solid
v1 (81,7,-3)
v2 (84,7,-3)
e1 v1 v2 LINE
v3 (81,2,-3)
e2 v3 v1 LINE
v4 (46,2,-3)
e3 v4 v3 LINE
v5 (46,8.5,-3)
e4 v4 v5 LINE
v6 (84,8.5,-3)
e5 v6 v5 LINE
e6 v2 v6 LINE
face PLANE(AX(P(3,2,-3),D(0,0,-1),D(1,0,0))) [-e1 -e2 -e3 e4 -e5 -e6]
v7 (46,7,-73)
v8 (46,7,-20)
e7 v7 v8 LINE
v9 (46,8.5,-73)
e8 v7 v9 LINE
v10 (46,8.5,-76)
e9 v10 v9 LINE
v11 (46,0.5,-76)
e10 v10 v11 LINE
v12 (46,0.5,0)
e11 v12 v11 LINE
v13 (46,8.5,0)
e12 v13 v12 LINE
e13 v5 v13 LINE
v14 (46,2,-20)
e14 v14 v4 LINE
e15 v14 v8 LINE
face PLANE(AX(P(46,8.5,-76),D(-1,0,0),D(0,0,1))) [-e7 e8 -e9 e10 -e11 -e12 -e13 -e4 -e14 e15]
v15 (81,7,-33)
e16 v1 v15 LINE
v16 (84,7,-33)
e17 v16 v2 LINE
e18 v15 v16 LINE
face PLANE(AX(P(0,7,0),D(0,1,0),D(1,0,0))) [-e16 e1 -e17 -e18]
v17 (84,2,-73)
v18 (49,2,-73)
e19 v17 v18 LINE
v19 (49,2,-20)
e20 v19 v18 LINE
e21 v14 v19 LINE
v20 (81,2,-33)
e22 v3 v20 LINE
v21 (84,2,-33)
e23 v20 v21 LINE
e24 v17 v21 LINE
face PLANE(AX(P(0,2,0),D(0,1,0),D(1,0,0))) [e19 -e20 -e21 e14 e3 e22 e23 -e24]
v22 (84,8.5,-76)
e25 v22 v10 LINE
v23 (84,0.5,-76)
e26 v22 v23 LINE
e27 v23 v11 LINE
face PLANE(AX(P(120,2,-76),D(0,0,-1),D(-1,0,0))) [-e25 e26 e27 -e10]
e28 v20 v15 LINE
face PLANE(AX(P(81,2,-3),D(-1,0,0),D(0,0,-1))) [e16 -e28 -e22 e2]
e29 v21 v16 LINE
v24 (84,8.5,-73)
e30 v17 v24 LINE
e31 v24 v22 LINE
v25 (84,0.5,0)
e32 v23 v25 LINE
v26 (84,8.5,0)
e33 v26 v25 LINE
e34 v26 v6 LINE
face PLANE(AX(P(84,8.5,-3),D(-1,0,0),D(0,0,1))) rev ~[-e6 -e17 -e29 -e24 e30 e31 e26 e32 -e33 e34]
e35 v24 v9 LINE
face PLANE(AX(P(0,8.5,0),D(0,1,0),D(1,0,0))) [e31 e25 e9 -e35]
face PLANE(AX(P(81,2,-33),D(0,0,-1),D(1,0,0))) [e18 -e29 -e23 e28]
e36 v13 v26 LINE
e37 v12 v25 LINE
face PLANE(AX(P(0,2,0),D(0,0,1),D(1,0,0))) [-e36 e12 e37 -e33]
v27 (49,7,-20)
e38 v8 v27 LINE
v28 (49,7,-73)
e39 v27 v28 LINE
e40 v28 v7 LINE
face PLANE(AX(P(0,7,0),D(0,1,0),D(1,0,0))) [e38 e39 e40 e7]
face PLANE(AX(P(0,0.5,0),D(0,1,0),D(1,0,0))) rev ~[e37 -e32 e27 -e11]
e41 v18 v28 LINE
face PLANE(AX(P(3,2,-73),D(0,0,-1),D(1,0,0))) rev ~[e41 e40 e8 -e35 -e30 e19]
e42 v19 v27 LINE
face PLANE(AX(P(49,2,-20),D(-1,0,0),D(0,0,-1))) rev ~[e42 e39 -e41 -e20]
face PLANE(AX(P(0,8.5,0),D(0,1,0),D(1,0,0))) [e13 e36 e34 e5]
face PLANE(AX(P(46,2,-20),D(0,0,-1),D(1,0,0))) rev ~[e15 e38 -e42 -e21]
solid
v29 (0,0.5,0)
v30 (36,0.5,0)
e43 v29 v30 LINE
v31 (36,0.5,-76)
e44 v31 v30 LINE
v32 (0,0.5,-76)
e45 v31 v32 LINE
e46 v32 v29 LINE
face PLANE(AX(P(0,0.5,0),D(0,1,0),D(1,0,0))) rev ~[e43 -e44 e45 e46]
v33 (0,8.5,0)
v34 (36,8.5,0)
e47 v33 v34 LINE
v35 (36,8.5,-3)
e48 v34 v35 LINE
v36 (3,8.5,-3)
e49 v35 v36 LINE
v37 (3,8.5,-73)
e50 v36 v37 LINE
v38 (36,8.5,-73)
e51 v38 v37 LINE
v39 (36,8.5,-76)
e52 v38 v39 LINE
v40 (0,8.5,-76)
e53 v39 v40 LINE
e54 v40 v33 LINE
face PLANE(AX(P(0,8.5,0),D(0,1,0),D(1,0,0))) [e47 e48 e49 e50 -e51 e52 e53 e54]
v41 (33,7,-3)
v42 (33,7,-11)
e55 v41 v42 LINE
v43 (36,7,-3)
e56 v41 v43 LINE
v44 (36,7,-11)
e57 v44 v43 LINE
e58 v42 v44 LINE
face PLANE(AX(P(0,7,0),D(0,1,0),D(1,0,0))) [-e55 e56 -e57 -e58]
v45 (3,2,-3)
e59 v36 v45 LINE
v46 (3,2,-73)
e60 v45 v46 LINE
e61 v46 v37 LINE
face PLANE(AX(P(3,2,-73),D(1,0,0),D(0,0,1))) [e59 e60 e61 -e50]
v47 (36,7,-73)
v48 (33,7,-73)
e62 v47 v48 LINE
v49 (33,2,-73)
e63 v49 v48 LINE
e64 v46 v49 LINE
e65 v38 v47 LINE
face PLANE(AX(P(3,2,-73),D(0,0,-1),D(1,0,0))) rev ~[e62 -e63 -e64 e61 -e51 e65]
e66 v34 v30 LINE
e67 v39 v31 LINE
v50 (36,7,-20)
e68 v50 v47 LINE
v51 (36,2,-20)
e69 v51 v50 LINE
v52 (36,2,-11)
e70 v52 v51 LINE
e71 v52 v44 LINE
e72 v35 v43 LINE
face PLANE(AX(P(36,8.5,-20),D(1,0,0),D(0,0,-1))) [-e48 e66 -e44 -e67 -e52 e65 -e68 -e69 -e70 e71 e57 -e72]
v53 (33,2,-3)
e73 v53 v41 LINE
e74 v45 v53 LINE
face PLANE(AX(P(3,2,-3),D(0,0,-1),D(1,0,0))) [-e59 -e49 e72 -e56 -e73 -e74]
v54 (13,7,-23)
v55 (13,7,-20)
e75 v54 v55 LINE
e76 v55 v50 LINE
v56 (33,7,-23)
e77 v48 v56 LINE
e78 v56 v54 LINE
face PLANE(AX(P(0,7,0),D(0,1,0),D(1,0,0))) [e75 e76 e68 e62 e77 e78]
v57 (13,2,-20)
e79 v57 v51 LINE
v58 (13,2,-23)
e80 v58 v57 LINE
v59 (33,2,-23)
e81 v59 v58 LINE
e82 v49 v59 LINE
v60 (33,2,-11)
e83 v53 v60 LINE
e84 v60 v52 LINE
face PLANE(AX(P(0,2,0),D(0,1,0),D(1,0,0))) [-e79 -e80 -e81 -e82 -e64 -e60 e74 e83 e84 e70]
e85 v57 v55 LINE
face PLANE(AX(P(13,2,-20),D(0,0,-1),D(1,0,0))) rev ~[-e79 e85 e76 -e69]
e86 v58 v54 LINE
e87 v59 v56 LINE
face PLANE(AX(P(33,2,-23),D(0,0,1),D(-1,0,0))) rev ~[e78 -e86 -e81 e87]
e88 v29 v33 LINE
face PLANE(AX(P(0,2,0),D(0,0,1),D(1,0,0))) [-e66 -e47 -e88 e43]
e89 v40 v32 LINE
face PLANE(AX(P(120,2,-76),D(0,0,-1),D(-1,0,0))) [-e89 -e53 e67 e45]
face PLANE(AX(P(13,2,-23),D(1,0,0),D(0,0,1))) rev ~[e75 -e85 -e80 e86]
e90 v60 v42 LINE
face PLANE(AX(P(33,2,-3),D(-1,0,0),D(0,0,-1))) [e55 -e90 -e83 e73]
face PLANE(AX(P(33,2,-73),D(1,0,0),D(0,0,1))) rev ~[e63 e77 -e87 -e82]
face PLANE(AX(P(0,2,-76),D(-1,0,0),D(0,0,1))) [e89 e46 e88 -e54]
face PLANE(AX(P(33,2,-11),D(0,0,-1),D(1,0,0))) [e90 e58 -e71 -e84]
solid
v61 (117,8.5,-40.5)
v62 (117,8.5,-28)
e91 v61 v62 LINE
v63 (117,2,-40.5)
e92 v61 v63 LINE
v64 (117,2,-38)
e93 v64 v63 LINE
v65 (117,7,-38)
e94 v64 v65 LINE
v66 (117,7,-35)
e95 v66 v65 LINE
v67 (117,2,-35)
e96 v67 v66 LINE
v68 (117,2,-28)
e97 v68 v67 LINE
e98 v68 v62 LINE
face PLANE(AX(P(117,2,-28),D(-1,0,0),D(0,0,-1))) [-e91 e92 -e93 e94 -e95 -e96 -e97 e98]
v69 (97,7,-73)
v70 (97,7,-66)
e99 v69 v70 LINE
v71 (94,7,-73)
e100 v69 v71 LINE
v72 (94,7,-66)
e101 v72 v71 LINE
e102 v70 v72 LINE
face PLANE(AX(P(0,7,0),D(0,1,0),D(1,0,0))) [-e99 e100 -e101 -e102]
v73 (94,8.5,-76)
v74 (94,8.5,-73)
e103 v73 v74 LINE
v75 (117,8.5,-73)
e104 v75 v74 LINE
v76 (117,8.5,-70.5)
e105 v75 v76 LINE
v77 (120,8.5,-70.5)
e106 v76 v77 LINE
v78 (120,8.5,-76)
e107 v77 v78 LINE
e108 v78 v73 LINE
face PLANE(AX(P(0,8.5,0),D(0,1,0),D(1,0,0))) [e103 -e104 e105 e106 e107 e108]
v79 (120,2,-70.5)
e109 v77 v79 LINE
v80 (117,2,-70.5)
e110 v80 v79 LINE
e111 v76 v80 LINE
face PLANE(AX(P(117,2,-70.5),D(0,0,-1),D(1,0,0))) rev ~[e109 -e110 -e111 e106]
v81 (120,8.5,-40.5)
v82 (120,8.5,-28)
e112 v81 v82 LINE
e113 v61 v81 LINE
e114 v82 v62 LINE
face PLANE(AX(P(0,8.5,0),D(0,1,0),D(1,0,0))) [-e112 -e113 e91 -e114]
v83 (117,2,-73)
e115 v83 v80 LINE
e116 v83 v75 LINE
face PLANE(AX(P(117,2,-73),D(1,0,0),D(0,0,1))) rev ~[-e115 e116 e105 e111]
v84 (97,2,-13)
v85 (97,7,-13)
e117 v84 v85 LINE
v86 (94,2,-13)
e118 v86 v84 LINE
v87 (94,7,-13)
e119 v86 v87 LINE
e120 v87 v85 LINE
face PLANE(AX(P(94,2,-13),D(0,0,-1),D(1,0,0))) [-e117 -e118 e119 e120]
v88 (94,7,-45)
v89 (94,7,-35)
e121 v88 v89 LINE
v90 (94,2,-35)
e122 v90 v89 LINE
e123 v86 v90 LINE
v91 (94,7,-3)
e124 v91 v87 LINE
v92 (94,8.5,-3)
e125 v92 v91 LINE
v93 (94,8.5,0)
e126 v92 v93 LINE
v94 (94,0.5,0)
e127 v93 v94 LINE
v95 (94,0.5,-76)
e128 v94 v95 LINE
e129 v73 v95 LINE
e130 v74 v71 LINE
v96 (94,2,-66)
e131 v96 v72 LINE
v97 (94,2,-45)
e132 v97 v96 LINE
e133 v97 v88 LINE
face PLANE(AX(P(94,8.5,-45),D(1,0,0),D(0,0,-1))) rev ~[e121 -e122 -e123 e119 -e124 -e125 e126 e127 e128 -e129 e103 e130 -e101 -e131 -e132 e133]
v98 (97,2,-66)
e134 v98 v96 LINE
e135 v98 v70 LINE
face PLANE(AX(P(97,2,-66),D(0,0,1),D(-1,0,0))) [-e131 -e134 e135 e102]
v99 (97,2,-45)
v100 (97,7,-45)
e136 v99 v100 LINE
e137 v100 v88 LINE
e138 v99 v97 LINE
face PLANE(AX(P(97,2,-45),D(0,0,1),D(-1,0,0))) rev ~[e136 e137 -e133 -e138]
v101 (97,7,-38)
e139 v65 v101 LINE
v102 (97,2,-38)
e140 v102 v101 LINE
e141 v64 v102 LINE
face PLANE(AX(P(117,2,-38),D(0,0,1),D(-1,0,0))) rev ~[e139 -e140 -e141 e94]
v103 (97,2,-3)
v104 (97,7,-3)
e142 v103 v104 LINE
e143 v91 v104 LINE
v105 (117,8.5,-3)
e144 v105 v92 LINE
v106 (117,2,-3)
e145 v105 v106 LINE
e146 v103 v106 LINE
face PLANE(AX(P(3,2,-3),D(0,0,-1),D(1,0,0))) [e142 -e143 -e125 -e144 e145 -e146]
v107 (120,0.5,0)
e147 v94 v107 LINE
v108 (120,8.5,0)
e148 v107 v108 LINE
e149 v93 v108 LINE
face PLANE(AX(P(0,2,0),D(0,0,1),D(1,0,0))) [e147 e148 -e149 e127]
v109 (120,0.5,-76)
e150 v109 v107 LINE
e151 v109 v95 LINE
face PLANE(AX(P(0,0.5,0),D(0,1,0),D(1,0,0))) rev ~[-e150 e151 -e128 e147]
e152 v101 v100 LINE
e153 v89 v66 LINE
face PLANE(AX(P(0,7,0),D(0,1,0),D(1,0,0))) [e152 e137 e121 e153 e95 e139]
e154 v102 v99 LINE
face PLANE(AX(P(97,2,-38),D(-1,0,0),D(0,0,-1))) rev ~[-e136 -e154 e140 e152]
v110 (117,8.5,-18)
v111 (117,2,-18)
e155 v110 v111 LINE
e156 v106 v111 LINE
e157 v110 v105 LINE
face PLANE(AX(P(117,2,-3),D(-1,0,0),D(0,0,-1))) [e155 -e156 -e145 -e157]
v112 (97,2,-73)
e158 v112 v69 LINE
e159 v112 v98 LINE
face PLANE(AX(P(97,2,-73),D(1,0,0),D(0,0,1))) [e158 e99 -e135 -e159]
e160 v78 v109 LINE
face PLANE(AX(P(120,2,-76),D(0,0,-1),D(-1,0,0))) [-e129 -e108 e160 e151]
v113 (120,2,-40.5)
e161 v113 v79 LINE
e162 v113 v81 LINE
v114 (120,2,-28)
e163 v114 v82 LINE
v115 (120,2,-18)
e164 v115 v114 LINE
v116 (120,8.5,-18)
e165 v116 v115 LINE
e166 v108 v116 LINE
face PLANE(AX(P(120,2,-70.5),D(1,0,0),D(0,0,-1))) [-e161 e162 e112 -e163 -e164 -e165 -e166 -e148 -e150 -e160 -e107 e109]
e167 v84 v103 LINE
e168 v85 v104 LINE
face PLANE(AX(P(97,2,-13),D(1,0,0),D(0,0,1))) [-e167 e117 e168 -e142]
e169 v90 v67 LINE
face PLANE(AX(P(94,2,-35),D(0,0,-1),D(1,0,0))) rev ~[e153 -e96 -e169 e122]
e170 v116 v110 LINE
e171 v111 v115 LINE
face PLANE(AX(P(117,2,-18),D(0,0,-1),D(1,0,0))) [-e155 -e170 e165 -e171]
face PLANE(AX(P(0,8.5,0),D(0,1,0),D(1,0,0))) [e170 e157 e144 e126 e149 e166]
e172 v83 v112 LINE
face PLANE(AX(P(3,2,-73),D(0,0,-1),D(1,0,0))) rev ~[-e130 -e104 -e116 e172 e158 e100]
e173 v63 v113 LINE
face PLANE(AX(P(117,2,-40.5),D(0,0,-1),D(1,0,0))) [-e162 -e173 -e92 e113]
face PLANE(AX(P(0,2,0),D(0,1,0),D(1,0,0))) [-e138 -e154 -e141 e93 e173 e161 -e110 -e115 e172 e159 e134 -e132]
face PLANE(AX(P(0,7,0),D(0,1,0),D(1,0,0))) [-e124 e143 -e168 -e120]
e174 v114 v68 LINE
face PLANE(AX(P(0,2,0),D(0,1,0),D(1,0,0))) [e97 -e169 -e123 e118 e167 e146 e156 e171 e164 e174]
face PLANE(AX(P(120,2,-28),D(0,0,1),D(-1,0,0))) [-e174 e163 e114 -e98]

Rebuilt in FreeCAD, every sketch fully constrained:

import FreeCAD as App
import Part
import Sketcher
from FreeCAD import Vector

doc = App.newDocument("Part")
body = doc.addObject("PartDesign::Body", "Body")
body.AllowCompound = True

# Sketch on XZ plane
sketch1 = body.newObject("Sketcher::SketchObject", "Sketch")
sketch1.AttachmentSupport = (doc.getObject("XZ_Plane"), [""])
sketch1.MapMode = "FlatFace"
sketch1.AttachmentOffset = App.Placement(Vector(0, 0, -2), App.Rotation())
sketch1.addGeometry(Part.LineSegment(Vector(3, -3, 0), Vector(3, -73, 0)), False)
sketch1.addGeometry(Part.LineSegment(Vector(3, -73, 0), Vector(33, -73, 0)), False)
sketch1.addGeometry(Part.LineSegment(Vector(33, -73, 0), Vector(33, -23, 0)), False)
sketch1.addGeometry(Part.LineSegment(Vector(33, -23, 0), Vector(13, -23, 0)), False)
sketch1.addGeometry(Part.LineSegment(Vector(13, -23, 0), Vector(13, -20, 0)), False)
sketch1.addGeometry(Part.LineSegment(Vector(13, -20, 0), Vector(36, -20, 0)), False)
sketch1.addGeometry(Part.LineSegment(Vector(36, -20, 0), Vector(36, -73, 0)), False)
sketch1.addGeometry(Part.LineSegment(Vector(36, -73, 0), Vector(46, -73, 0)), False)
sketch1.addGeometry(Part.LineSegment(Vector(46, -73, 0), Vector(46, -20, 0)), False)
sketch1.addGeometry(Part.LineSegment(Vector(46, -20, 0), Vector(49, -20, 0)), False)
sketch1.addGeometry(Part.LineSegment(Vector(49, -20, 0), Vector(49, -73, 0)), False)
sketch1.addGeometry(Part.LineSegment(Vector(49, -73, 0), Vector(94, -73, 0)), False)
sketch1.addGeometry(Part.LineSegment(Vector(94, -73, 0), Vector(94, -66, 0)), False)
sketch1.addGeometry(Part.LineSegment(Vector(94, -66, 0), Vector(97, -66, 0)), False)
sketch1.addGeometry(Part.LineSegment(Vector(97, -66, 0), Vector(97, -73, 0)), False)
sketch1.addGeometry(Part.LineSegment(Vector(97, -73, 0), Vector(117, -73, 0)), False)
sketch1.addGeometry(Part.LineSegment(Vector(117, -73, 0), Vector(117, -70.5, 0)), False)
sketch1.addGeometry(Part.LineSegment(Vector(117, -70.5, 0), Vector(120, -70.5, 0)), False)
sketch1.addGeometry(Part.LineSegment(Vector(120, -70.5, 0), Vector(120, -76, 0)), False)
sketch1.addGeometry(Part.LineSegment(Vector(120, -76, 0), Vector(0, -76, 0)), False)
sketch1.addGeometry(Part.LineSegment(Vector(0, -76, 0), Vector(0, 0, 0)), False)
sketch1.addGeometry(Part.LineSegment(Vector(0, 0, 0), Vector(120, 0, 0)), False)
sketch1.addGeometry(Part.LineSegment(Vector(120, 0, 0), Vector(120, -18, 0)), False)
sketch1.addGeometry(Part.LineSegment(Vector(120, -18, 0), Vector(117, -18, 0)), False)
sketch1.addGeometry(Part.LineSegment(Vector(117, -18, 0), Vector(117, -3, 0)), False)
sketch1.addGeometry(Part.LineSegment(Vector(117, -3, 0), Vector(97, -3, 0)), False)
sketch1.addGeometry(Part.LineSegment(Vector(97, -3, 0), Vector(97, -13, 0)), False)
sketch1.addGeometry(Part.LineSegment(Vector(97, -13, 0), Vector(94, -13, 0)), False)
sketch1.addGeometry(Part.LineSegment(Vector(94, -13, 0), Vector(94, -3, 0)), False)
sketch1.addGeometry(Part.LineSegment(Vector(94, -3, 0), Vector(84, -3, 0)), False)
sketch1.addGeometry(Part.LineSegment(Vector(84, -3, 0), Vector(84, -33, 0)), False)
sketch1.addGeometry(Part.LineSegment(Vector(84, -33, 0), Vector(81, -33, 0)), False)
sketch1.addGeometry(Part.LineSegment(Vector(81, -33, 0), Vector(81, -3, 0)), False)
sketch1.addGeometry(Part.LineSegment(Vector(81, -3, 0), Vector(36, -3, 0)), False)
sketch1.addGeometry(Part.LineSegment(Vector(36, -3, 0), Vector(36, -11, 0)), False)
sketch1.addGeometry(Part.LineSegment(Vector(36, -11, 0), Vector(33, -11, 0)), False)
sketch1.addGeometry(Part.LineSegment(Vector(33, -11, 0), Vector(33, -3, 0)), False)
sketch1.addGeometry(Part.LineSegment(Vector(33, -3, 0), Vector(3, -3, 0)), False)
sketch1.addGeometry(Part.LineSegment(Vector(117, -35, 0), Vector(117, -28, 0)), False)
sketch1.addGeometry(Part.LineSegment(Vector(117, -28, 0), Vector(120, -28, 0)), False)
sketch1.addGeometry(Part.LineSegment(Vector(120, -28, 0), Vector(120, -40.5, 0)), False)
sketch1.addGeometry(Part.LineSegment(Vector(120, -40.5, 0), Vector(117, -40.5, 0)), False)
sketch1.addGeometry(Part.LineSegment(Vector(117, -40.5, 0), Vector(117, -38, 0)), False)
sketch1.addGeometry(Part.LineSegment(Vector(117, -38, 0), Vector(97, -38, 0)), False)
sketch1.addGeometry(Part.LineSegment(Vector(97, -38, 0), Vector(97, -45, 0)), False)
sketch1.addGeometry(Part.LineSegment(Vector(97, -45, 0), Vector(94, -45, 0)), False)
sketch1.addGeometry(Part.LineSegment(Vector(94, -45, 0), Vector(94, -35, 0)), False)
sketch1.addGeometry(Part.LineSegment(Vector(94, -35, 0), Vector(117, -35, 0)), False)
sketch1.addConstraint(Sketcher.Constraint("Coincident", 0, 2, 1, 1))
sketch1.addConstraint(Sketcher.Constraint("Coincident", 1, 2, 2, 1))
sketch1.addConstraint(Sketcher.Constraint("Coincident", 2, 2, 3, 1))
sketch1.addConstraint(Sketcher.Constraint("Coincident", 3, 2, 4, 1))
sketch1.addConstraint(Sketcher.Constraint("Coincident", 4, 2, 5, 1))
sketch1.addConstraint(Sketcher.Constraint("Coincident", 5, 2, 6, 1))
sketch1.addConstraint(Sketcher.Constraint("Coincident", 6, 2, 7, 1))
sketch1.addConstraint(Sketcher.Constraint("Coincident", 7, 2, 8, 1))
sketch1.addConstraint(Sketcher.Constraint("Coincident", 8, 2, 9, 1))
sketch1.addConstraint(Sketcher.Constraint("Coincident", 9, 2, 10, 1))
sketch1.addConstraint(Sketcher.Constraint("Coincident", 10, 2, 11, 1))
sketch1.addConstraint(Sketcher.Constraint("Coincident", 11, 2, 12, 1))
sketch1.addConstraint(Sketcher.Constraint("Coincident", 12, 2, 13, 1))
sketch1.addConstraint(Sketcher.Constraint("Coincident", 13, 2, 14, 1))
sketch1.addConstraint(Sketcher.Constraint("Coincident", 14, 2, 15, 1))
sketch1.addConstraint(Sketcher.Constraint("Coincident", 15, 2, 16, 1))
sketch1.addConstraint(Sketcher.Constraint("Coincident", 16, 2, 17, 1))
sketch1.addConstraint(Sketcher.Constraint("Coincident", 17, 2, 18, 1))
sketch1.addConstraint(Sketcher.Constraint("Coincident", 18, 2, 19, 1))
sketch1.addConstraint(Sketcher.Constraint("Coincident", 19, 2, 20, 1))
sketch1.addConstraint(Sketcher.Constraint("Coincident", 20, 2, 21, 1))
sketch1.addConstraint(Sketcher.Constraint("Coincident", 21, 2, 22, 1))
sketch1.addConstraint(Sketcher.Constraint("Coincident", 22, 2, 23, 1))
sketch1.addConstraint(Sketcher.Constraint("Coincident", 23, 2, 24, 1))
sketch1.addConstraint(Sketcher.Constraint("Coincident", 24, 2, 25, 1))
sketch1.addConstraint(Sketcher.Constraint("Coincident", 25, 2, 26, 1))
sketch1.addConstraint(Sketcher.Constraint("Coincident", 26, 2, 27, 1))
sketch1.addConstraint(Sketcher.Constraint("Coincident", 27, 2, 28, 1))
sketch1.addConstraint(Sketcher.Constraint("Coincident", 28, 2, 29, 1))
sketch1.addConstraint(Sketcher.Constraint("Coincident", 29, 2, 30, 1))
sketch1.addConstraint(Sketcher.Constraint("Coincident", 30, 2, 31, 1))
sketch1.addConstraint(Sketcher.Constraint("Coincident", 31, 2, 32, 1))
sketch1.addConstraint(Sketcher.Constraint("Coincident", 32, 2, 33, 1))
sketch1.addConstraint(Sketcher.Constraint("Coincident", 33, 2, 34, 1))
sketch1.addConstraint(Sketcher.Constraint("Coincident", 34, 2, 35, 1))
sketch1.addConstraint(Sketcher.Constraint("Coincident", 35, 2, 36, 1))
sketch1.addConstraint(Sketcher.Constraint("Coincident", 36, 2, 37, 1))
sketch1.addConstraint(Sketcher.Constraint("Coincident", 37, 2, 0, 1))
sketch1.addConstraint(Sketcher.Constraint("Coincident", 38, 2, 39, 1))
sketch1.addConstraint(Sketcher.Constraint("Coincident", 39, 2, 40, 1))
sketch1.addConstraint(Sketcher.Constraint("Coincident", 40, 2, 41, 1))
sketch1.addConstraint(Sketcher.Constraint("Coincident", 41, 2, 42, 1))
sketch1.addConstraint(Sketcher.Constraint("Coincident", 42, 2, 43, 1))
sketch1.addConstraint(Sketcher.Constraint("Coincident", 43, 2, 44, 1))
sketch1.addConstraint(Sketcher.Constraint("Coincident", 44, 2, 45, 1))
sketch1.addConstraint(Sketcher.Constraint("Coincident", 45, 2, 46, 1))
sketch1.addConstraint(Sketcher.Constraint("Coincident", 46, 2, 47, 1))
sketch1.addConstraint(Sketcher.Constraint("Coincident", 47, 2, 38, 1))
sketch1.addConstraint(Sketcher.Constraint("Vertical", 0))
sketch1.addConstraint(Sketcher.Constraint("Horizontal", 1))
sketch1.addConstraint(Sketcher.Constraint("Vertical", 2))
sketch1.addConstraint(Sketcher.Constraint("Horizontal", 3))
sketch1.addConstraint(Sketcher.Constraint("Vertical", 4))
sketch1.addConstraint(Sketcher.Constraint("Horizontal", 5))
sketch1.addConstraint(Sketcher.Constraint("Vertical", 6))
sketch1.addConstraint(Sketcher.Constraint("Horizontal", 7))
sketch1.addConstraint(Sketcher.Constraint("Vertical", 8))
sketch1.addConstraint(Sketcher.Constraint("Horizontal", 9))
sketch1.addConstraint(Sketcher.Constraint("Vertical", 10))
sketch1.addConstraint(Sketcher.Constraint("Horizontal", 11))
sketch1.addConstraint(Sketcher.Constraint("Vertical", 12))
sketch1.addConstraint(Sketcher.Constraint("Horizontal", 13))
sketch1.addConstraint(Sketcher.Constraint("Vertical", 14))
sketch1.addConstraint(Sketcher.Constraint("Horizontal", 15))
sketch1.addConstraint(Sketcher.Constraint("Vertical", 16))
sketch1.addConstraint(Sketcher.Constraint("Horizontal", 17))
sketch1.addConstraint(Sketcher.Constraint("Vertical", 18))
sketch1.addConstraint(Sketcher.Constraint("Horizontal", 19))
sketch1.addConstraint(Sketcher.Constraint("Vertical", 20))
sketch1.addConstraint(Sketcher.Constraint("Horizontal", 21))
sketch1.addConstraint(Sketcher.Constraint("Vertical", 22))
sketch1.addConstraint(Sketcher.Constraint("Horizontal", 23))
sketch1.addConstraint(Sketcher.Constraint("Vertical", 24))
sketch1.addConstraint(Sketcher.Constraint("Horizontal", 25))
sketch1.addConstraint(Sketcher.Constraint("Vertical", 26))
sketch1.addConstraint(Sketcher.Constraint("Horizontal", 27))
sketch1.addConstraint(Sketcher.Constraint("Vertical", 28))
sketch1.addConstraint(Sketcher.Constraint("Horizontal", 29))
sketch1.addConstraint(Sketcher.Constraint("Vertical", 30))
sketch1.addConstraint(Sketcher.Constraint("Horizontal", 31))
sketch1.addConstraint(Sketcher.Constraint("Vertical", 32))
sketch1.addConstraint(Sketcher.Constraint("Horizontal", 33))
sketch1.addConstraint(Sketcher.Constraint("Vertical", 34))
sketch1.addConstraint(Sketcher.Constraint("Horizontal", 35))
sketch1.addConstraint(Sketcher.Constraint("Vertical", 36))
sketch1.addConstraint(Sketcher.Constraint("Horizontal", 37))
sketch1.addConstraint(Sketcher.Constraint("Vertical", 38))
sketch1.addConstraint(Sketcher.Constraint("Horizontal", 39))
sketch1.addConstraint(Sketcher.Constraint("Vertical", 40))
sketch1.addConstraint(Sketcher.Constraint("Horizontal", 41))
sketch1.addConstraint(Sketcher.Constraint("Vertical", 42))
sketch1.addConstraint(Sketcher.Constraint("Horizontal", 43))
sketch1.addConstraint(Sketcher.Constraint("Vertical", 44))
sketch1.addConstraint(Sketcher.Constraint("Horizontal", 45))
sketch1.addConstraint(Sketcher.Constraint("Vertical", 46))
sketch1.addConstraint(Sketcher.Constraint("Horizontal", 47))
sketch1.addConstraint(Sketcher.Constraint("Coincident", 20, 2, -1, 1))
sketch1.addConstraint(Sketcher.Constraint("Horizontal", 1, 2, 6, 2))
sketch1.addConstraint(Sketcher.Constraint("Horizontal", 5, 2, 8, 2))
sketch1.addConstraint(Sketcher.Constraint("Horizontal", 7, 2, 10, 2))
sketch1.addConstraint(Sketcher.Constraint("Horizontal", 11, 2, 14, 2))
sketch1.addConstraint(Sketcher.Constraint("Horizontal", 25, 2, 28, 2))
sketch1.addConstraint(Sketcher.Constraint("Horizontal", 29, 2, 32, 2))
sketch1.addConstraint(Sketcher.Constraint("Horizontal", 33, 2, 36, 2))
sketch1.addConstraint(Sketcher.Constraint("Vertical", 18, 2, 21, 2))
sketch1.addConstraint(Sketcher.Constraint("Vertical", 16, 2, 23, 2))
sketch1.addConstraint(Sketcher.Constraint("Vertical", 14, 2, 25, 2))
sketch1.addConstraint(Sketcher.Constraint("Vertical", 12, 2, 27, 2))
sketch1.addConstraint(Sketcher.Constraint("Vertical", 6, 2, 33, 2))
sketch1.addConstraint(Sketcher.Constraint("Vertical", 2, 2, 35, 2))
sketch1.addConstraint(Sketcher.Constraint("Vertical", 24, 2, 38, 2))
sketch1.addConstraint(Sketcher.Constraint("Vertical", 22, 2, 39, 2))
sketch1.addConstraint(Sketcher.Constraint("Vertical", 38, 2, 41, 2))
sketch1.addConstraint(Sketcher.Constraint("Vertical", 26, 2, 43, 2))
sketch1.addConstraint(Sketcher.Constraint("Vertical", 28, 2, 45, 2))
sketch1.addConstraint(Sketcher.Constraint("Equal", 9, 13))
sketch1.addConstraint(Sketcher.Constraint("Equal", 3, 15))
sketch1.addConstraint(Sketcher.Constraint("Equal", 13, 17))
sketch1.addConstraint(Sketcher.Constraint("Equal", 7, 29))
sketch1.addConstraint(Sketcher.Constraint("Equal", 27, 31))
sketch1.addConstraint(Sketcher.Constraint("Equal", 31, 35))
sketch1.addConstraint(Sketcher.Constraint("Equal", 45, 4))
sketch1.addConstraint(Sketcher.Constraint("Equal", 29, 26))
sketch1.addConstraint(Sketcher.Constraint("Equal", 37, 30))
sketch1.addConstraint(Sketcher.Constraint("Equal", 14, 38))
sketch1.addConstraint(Sketcher.Constraint("Equal", 16, 42))
sketch1.addConstraint(Sketcher.Constraint("Equal", 38, 44))
sketch1.addConstraint(Sketcher.Constraint("Equal", 28, 46))
sketch1.addConstraint(Sketcher.Constraint("DistanceX", 1, 1, 1, 2, 30.0))
sketch1.addConstraint(Sketcher.Constraint("DistanceX", 3, 2, 3, 1, 20.0))
sketch1.addConstraint(Sketcher.Constraint("DistanceX", 7, 1, 7, 2, 10.0))
sketch1.addConstraint(Sketcher.Constraint("DistanceX", 9, 1, 9, 2, 3.0))
sketch1.addConstraint(Sketcher.Constraint("DistanceX", 19, 2, 19, 1, 120.0))
sketch1.addConstraint(Sketcher.Constraint("DistanceY", 2, 1, 2, 2, 50.0))
sketch1.addConstraint(Sketcher.Constraint("DistanceY", 12, 1, 12, 2, 7.0))
sketch1.addConstraint(Sketcher.Constraint("DistanceY", 20, 1, 20, 2, 76.0))
sketch1.addConstraint(Sketcher.Constraint("DistanceY", 24, 1, 24, 2, 15.0))
sketch1.addConstraint(Sketcher.Constraint("DistanceY", 34, 2, 34, 1, 8.0))
sketch1.addConstraint(Sketcher.Constraint("DistanceY", 16, 1, 16, 2, 2.5))
sketch1.addConstraint(Sketcher.Constraint("DistanceX", -1, 1, 0, 2, 3.0))
sketch1.addConstraint(Sketcher.Constraint("DistanceY", 4, 2, -1, 1, 20.0))
sketch1.addConstraint(Sketcher.Constraint("DistanceY", 24, 2, -1, 1, 3.0))
sketch1.addConstraint(Sketcher.Constraint("DistanceY", 46, 2, -1, 1, 35.0))
pad1 = body.newObject("PartDesign::Pad", "Pad")
pad1.Profile = sketch1
pad1.Length = 5
pad1.Reversed = True

# Sketch on XZ plane
sketch2 = body.newObject("Sketcher::SketchObject", "Sketch001")
sketch2.AttachmentSupport = (doc.getObject("XZ_Plane"), [""])
sketch2.MapMode = "FlatFace"
sketch2.AttachmentOffset = App.Placement(Vector(0, 0, -2), App.Rotation())
sketch2.addGeometry(Part.LineSegment(Vector(0, -76, 0), Vector(0, 0, 0)), False)
sketch2.addGeometry(Part.LineSegment(Vector(0, 0, 0), Vector(120, 0, 0)), False)
sketch2.addGeometry(Part.LineSegment(Vector(120, 0, 0), Vector(120, -18, 0)), False)
sketch2.addGeometry(Part.LineSegment(Vector(120, -18, 0), Vector(117, -18, 0)), False)
sketch2.addGeometry(Part.LineSegment(Vector(117, -18, 0), Vector(117, -3, 0)), False)
sketch2.addGeometry(Part.LineSegment(Vector(117, -3, 0), Vector(3, -3, 0)), False)
sketch2.addGeometry(Part.LineSegment(Vector(3, -3, 0), Vector(3, -73, 0)), False)
sketch2.addGeometry(Part.LineSegment(Vector(3, -73, 0), Vector(117, -73, 0)), False)
sketch2.addGeometry(Part.LineSegment(Vector(117, -73, 0), Vector(117, -70.5, 0)), False)
sketch2.addGeometry(Part.LineSegment(Vector(117, -70.5, 0), Vector(120, -70.5, 0)), False)
sketch2.addGeometry(Part.LineSegment(Vector(120, -70.5, 0), Vector(120, -76, 0)), False)
sketch2.addGeometry(Part.LineSegment(Vector(120, -76, 0), Vector(0, -76, 0)), False)
sketch2.addGeometry(Part.LineSegment(Vector(117, -28, 0), Vector(120, -28, 0)), False)
sketch2.addGeometry(Part.LineSegment(Vector(120, -28, 0), Vector(120, -40.5, 0)), False)
sketch2.addGeometry(Part.LineSegment(Vector(120, -40.5, 0), Vector(117, -40.5, 0)), False)
sketch2.addGeometry(Part.LineSegment(Vector(117, -40.5, 0), Vector(117, -28, 0)), False)
sketch2.addConstraint(Sketcher.Constraint("Coincident", 0, 2, 1, 1))
sketch2.addConstraint(Sketcher.Constraint("Coincident", 1, 2, 2, 1))
sketch2.addConstraint(Sketcher.Constraint("Coincident", 2, 2, 3, 1))
sketch2.addConstraint(Sketcher.Constraint("Coincident", 3, 2, 4, 1))
sketch2.addConstraint(Sketcher.Constraint("Coincident", 4, 2, 5, 1))
sketch2.addConstraint(Sketcher.Constraint("Coincident", 5, 2, 6, 1))
sketch2.addConstraint(Sketcher.Constraint("Coincident", 6, 2, 7, 1))
sketch2.addConstraint(Sketcher.Constraint("Coincident", 7, 2, 8, 1))
sketch2.addConstraint(Sketcher.Constraint("Coincident", 8, 2, 9, 1))
sketch2.addConstraint(Sketcher.Constraint("Coincident", 9, 2, 10, 1))
sketch2.addConstraint(Sketcher.Constraint("Coincident", 10, 2, 11, 1))
sketch2.addConstraint(Sketcher.Constraint("Coincident", 11, 2, 0, 1))
sketch2.addConstraint(Sketcher.Constraint("Coincident", 12, 2, 13, 1))
sketch2.addConstraint(Sketcher.Constraint("Coincident", 13, 2, 14, 1))
sketch2.addConstraint(Sketcher.Constraint("Coincident", 14, 2, 15, 1))
sketch2.addConstraint(Sketcher.Constraint("Coincident", 15, 2, 12, 1))
sketch2.addConstraint(Sketcher.Constraint("Vertical", 0))
sketch2.addConstraint(Sketcher.Constraint("Horizontal", 1))
sketch2.addConstraint(Sketcher.Constraint("Vertical", 2))
sketch2.addConstraint(Sketcher.Constraint("Horizontal", 3))
sketch2.addConstraint(Sketcher.Constraint("Vertical", 4))
sketch2.addConstraint(Sketcher.Constraint("Horizontal", 5))
sketch2.addConstraint(Sketcher.Constraint("Vertical", 6))
sketch2.addConstraint(Sketcher.Constraint("Horizontal", 7))
sketch2.addConstraint(Sketcher.Constraint("Vertical", 8))
sketch2.addConstraint(Sketcher.Constraint("Horizontal", 9))
sketch2.addConstraint(Sketcher.Constraint("Vertical", 10))
sketch2.addConstraint(Sketcher.Constraint("Horizontal", 11))
sketch2.addConstraint(Sketcher.Constraint("Horizontal", 12))
sketch2.addConstraint(Sketcher.Constraint("Vertical", 13))
sketch2.addConstraint(Sketcher.Constraint("Horizontal", 14))
sketch2.addConstraint(Sketcher.Constraint("Vertical", 15))
sketch2.addConstraint(Sketcher.Constraint("Coincident", 0, 2, -1, 1))
sketch2.addConstraint(Sketcher.Constraint("Vertical", 4, 2, 7, 2))
sketch2.addConstraint(Sketcher.Constraint("Vertical", 2, 2, 9, 2))
sketch2.addConstraint(Sketcher.Constraint("Vertical", 10, 2, 12, 2))
sketch2.addConstraint(Sketcher.Constraint("Vertical", 8, 2, 14, 2))
sketch2.addConstraint(Sketcher.Constraint("DistanceX", 1, 1, 1, 2, 120.0))
sketch2.addConstraint(Sketcher.Constraint("DistanceX", 3, 2, 3, 1, 3.0))
sketch2.addConstraint(Sketcher.Constraint("DistanceX", 5, 2, 5, 1, 114.0))
sketch2.addConstraint(Sketcher.Constraint("DistanceY", 0, 1, 0, 2, 76.0))
sketch2.addConstraint(Sketcher.Constraint("DistanceY", 2, 2, 2, 1, 18.0))
sketch2.addConstraint(Sketcher.Constraint("DistanceY", 4, 1, 4, 2, 15.0))
sketch2.addConstraint(Sketcher.Constraint("DistanceY", 6, 2, 6, 1, 70.0))
sketch2.addConstraint(Sketcher.Constraint("DistanceY", 8, 1, 8, 2, 2.5))
sketch2.addConstraint(Sketcher.Constraint("DistanceY", 13, 2, 13, 1, 12.5))
sketch2.addConstraint(Sketcher.Constraint("DistanceY", 12, 2, -1, 1, 28.0))
pad2 = body.newObject("PartDesign::Pad", "Pad001")
pad2.Profile = sketch2
pad2.Length = 6.5
pad2.Reversed = True

# Sketch on XZ plane
sketch3 = body.newObject("Sketcher::SketchObject", "Sketch002")
sketch3.AttachmentSupport = (doc.getObject("XZ_Plane"), [""])
sketch3.MapMode = "FlatFace"
sketch3.AttachmentOffset = App.Placement(Vector(0, 0, -2), App.Rotation())
sketch3.addGeometry(Part.LineSegment(Vector(0, -76, 0), Vector(0, 0, 0)), False)
sketch3.addGeometry(Part.LineSegment(Vector(0, 0, 0), Vector(120, 0, 0)), False)
sketch3.addGeometry(Part.LineSegment(Vector(120, 0, 0), Vector(120, -76, 0)), False)
sketch3.addGeometry(Part.LineSegment(Vector(120, -76, 0), Vector(0, -76, 0)), False)
sketch3.addConstraint(Sketcher.Constraint("Coincident", 0, 2, 1, 1))
sketch3.addConstraint(Sketcher.Constraint("Coincident", 1, 2, 2, 1))
sketch3.addConstraint(Sketcher.Constraint("Coincident", 2, 2, 3, 1))
sketch3.addConstraint(Sketcher.Constraint("Coincident", 3, 2, 0, 1))
sketch3.addConstraint(Sketcher.Constraint("Vertical", 0))
sketch3.addConstraint(Sketcher.Constraint("Horizontal", 1))
sketch3.addConstraint(Sketcher.Constraint("Vertical", 2))
sketch3.addConstraint(Sketcher.Constraint("Horizontal", 3))
sketch3.addConstraint(Sketcher.Constraint("Coincident", 0, 2, -1, 1))
sketch3.addConstraint(Sketcher.Constraint("DistanceX", 1, 1, 1, 2, 120.0))
sketch3.addConstraint(Sketcher.Constraint("DistanceY", 0, 1, 0, 2, 76.0))
pad3 = body.newObject("PartDesign::Pad", "Pad002")
pad3.Profile = sketch3
pad3.Length = 1.5

# Sketch on XZ plane
sketch4 = body.newObject("Sketcher::SketchObject", "Sketch003")
sketch4.AttachmentSupport = (doc.getObject("XZ_Plane"), [""])
sketch4.MapMode = "FlatFace"
sketch4.AttachmentOffset = App.Placement(Vector(0, 0, -8.5), App.Rotation())
sketch4.addGeometry(Part.LineSegment(Vector(36, -76, 0), Vector(36, 0, 0)), False)
sketch4.addGeometry(Part.LineSegment(Vector(36, 0, 0), Vector(46, 0, 0)), False)
sketch4.addGeometry(Part.LineSegment(Vector(46, 0, 0), Vector(46, -76, 0)), False)
sketch4.addGeometry(Part.LineSegment(Vector(46, -76, 0), Vector(36, -76, 0)), False)
sketch4.addGeometry(Part.LineSegment(Vector(84, -76, 0), Vector(84, 0, 0)), False)
sketch4.addGeometry(Part.LineSegment(Vector(84, 0, 0), Vector(94, 0, 0)), False)
sketch4.addGeometry(Part.LineSegment(Vector(94, 0, 0), Vector(94, -76, 0)), False)
sketch4.addGeometry(Part.LineSegment(Vector(94, -76, 0), Vector(84, -76, 0)), False)
sketch4.addConstraint(Sketcher.Constraint("Coincident", 0, 2, 1, 1))
sketch4.addConstraint(Sketcher.Constraint("Coincident", 1, 2, 2, 1))
sketch4.addConstraint(Sketcher.Constraint("Coincident", 2, 2, 3, 1))
sketch4.addConstraint(Sketcher.Constraint("Coincident", 3, 2, 0, 1))
sketch4.addConstraint(Sketcher.Constraint("Coincident", 4, 2, 5, 1))
sketch4.addConstraint(Sketcher.Constraint("Coincident", 5, 2, 6, 1))
sketch4.addConstraint(Sketcher.Constraint("Coincident", 6, 2, 7, 1))
sketch4.addConstraint(Sketcher.Constraint("Coincident", 7, 2, 4, 1))
sketch4.addConstraint(Sketcher.Constraint("Vertical", 0))
sketch4.addConstraint(Sketcher.Constraint("Horizontal", 1))
sketch4.addConstraint(Sketcher.Constraint("Vertical", 2))
sketch4.addConstraint(Sketcher.Constraint("Horizontal", 3))
sketch4.addConstraint(Sketcher.Constraint("Vertical", 4))
sketch4.addConstraint(Sketcher.Constraint("Horizontal", 5))
sketch4.addConstraint(Sketcher.Constraint("Vertical", 6))
sketch4.addConstraint(Sketcher.Constraint("Horizontal", 7))
sketch4.addConstraint(Sketcher.Constraint("PointOnObject", 0, 2, -1))
sketch4.addConstraint(Sketcher.Constraint("PointOnObject", 4, 2, -1))
sketch4.addConstraint(Sketcher.Constraint("Horizontal", 3, 2, 6, 2))
sketch4.addConstraint(Sketcher.Constraint("Equal", 3, 5))
sketch4.addConstraint(Sketcher.Constraint("DistanceX", 1, 1, 1, 2, 10.0))
sketch4.addConstraint(Sketcher.Constraint("DistanceY", 0, 1, 0, 2, 76.0))
sketch4.addConstraint(Sketcher.Constraint("DistanceX", -1, 1, 0, 2, 36.0))
sketch4.addConstraint(Sketcher.Constraint("DistanceX", -1, 1, 4, 2, 84.0))
pocket1 = body.newObject("PartDesign::Pocket", "Pocket")
pocket1.Profile = sketch4
pocket1.Length = 8
pocket1.Reversed = True

doc.recompute()
